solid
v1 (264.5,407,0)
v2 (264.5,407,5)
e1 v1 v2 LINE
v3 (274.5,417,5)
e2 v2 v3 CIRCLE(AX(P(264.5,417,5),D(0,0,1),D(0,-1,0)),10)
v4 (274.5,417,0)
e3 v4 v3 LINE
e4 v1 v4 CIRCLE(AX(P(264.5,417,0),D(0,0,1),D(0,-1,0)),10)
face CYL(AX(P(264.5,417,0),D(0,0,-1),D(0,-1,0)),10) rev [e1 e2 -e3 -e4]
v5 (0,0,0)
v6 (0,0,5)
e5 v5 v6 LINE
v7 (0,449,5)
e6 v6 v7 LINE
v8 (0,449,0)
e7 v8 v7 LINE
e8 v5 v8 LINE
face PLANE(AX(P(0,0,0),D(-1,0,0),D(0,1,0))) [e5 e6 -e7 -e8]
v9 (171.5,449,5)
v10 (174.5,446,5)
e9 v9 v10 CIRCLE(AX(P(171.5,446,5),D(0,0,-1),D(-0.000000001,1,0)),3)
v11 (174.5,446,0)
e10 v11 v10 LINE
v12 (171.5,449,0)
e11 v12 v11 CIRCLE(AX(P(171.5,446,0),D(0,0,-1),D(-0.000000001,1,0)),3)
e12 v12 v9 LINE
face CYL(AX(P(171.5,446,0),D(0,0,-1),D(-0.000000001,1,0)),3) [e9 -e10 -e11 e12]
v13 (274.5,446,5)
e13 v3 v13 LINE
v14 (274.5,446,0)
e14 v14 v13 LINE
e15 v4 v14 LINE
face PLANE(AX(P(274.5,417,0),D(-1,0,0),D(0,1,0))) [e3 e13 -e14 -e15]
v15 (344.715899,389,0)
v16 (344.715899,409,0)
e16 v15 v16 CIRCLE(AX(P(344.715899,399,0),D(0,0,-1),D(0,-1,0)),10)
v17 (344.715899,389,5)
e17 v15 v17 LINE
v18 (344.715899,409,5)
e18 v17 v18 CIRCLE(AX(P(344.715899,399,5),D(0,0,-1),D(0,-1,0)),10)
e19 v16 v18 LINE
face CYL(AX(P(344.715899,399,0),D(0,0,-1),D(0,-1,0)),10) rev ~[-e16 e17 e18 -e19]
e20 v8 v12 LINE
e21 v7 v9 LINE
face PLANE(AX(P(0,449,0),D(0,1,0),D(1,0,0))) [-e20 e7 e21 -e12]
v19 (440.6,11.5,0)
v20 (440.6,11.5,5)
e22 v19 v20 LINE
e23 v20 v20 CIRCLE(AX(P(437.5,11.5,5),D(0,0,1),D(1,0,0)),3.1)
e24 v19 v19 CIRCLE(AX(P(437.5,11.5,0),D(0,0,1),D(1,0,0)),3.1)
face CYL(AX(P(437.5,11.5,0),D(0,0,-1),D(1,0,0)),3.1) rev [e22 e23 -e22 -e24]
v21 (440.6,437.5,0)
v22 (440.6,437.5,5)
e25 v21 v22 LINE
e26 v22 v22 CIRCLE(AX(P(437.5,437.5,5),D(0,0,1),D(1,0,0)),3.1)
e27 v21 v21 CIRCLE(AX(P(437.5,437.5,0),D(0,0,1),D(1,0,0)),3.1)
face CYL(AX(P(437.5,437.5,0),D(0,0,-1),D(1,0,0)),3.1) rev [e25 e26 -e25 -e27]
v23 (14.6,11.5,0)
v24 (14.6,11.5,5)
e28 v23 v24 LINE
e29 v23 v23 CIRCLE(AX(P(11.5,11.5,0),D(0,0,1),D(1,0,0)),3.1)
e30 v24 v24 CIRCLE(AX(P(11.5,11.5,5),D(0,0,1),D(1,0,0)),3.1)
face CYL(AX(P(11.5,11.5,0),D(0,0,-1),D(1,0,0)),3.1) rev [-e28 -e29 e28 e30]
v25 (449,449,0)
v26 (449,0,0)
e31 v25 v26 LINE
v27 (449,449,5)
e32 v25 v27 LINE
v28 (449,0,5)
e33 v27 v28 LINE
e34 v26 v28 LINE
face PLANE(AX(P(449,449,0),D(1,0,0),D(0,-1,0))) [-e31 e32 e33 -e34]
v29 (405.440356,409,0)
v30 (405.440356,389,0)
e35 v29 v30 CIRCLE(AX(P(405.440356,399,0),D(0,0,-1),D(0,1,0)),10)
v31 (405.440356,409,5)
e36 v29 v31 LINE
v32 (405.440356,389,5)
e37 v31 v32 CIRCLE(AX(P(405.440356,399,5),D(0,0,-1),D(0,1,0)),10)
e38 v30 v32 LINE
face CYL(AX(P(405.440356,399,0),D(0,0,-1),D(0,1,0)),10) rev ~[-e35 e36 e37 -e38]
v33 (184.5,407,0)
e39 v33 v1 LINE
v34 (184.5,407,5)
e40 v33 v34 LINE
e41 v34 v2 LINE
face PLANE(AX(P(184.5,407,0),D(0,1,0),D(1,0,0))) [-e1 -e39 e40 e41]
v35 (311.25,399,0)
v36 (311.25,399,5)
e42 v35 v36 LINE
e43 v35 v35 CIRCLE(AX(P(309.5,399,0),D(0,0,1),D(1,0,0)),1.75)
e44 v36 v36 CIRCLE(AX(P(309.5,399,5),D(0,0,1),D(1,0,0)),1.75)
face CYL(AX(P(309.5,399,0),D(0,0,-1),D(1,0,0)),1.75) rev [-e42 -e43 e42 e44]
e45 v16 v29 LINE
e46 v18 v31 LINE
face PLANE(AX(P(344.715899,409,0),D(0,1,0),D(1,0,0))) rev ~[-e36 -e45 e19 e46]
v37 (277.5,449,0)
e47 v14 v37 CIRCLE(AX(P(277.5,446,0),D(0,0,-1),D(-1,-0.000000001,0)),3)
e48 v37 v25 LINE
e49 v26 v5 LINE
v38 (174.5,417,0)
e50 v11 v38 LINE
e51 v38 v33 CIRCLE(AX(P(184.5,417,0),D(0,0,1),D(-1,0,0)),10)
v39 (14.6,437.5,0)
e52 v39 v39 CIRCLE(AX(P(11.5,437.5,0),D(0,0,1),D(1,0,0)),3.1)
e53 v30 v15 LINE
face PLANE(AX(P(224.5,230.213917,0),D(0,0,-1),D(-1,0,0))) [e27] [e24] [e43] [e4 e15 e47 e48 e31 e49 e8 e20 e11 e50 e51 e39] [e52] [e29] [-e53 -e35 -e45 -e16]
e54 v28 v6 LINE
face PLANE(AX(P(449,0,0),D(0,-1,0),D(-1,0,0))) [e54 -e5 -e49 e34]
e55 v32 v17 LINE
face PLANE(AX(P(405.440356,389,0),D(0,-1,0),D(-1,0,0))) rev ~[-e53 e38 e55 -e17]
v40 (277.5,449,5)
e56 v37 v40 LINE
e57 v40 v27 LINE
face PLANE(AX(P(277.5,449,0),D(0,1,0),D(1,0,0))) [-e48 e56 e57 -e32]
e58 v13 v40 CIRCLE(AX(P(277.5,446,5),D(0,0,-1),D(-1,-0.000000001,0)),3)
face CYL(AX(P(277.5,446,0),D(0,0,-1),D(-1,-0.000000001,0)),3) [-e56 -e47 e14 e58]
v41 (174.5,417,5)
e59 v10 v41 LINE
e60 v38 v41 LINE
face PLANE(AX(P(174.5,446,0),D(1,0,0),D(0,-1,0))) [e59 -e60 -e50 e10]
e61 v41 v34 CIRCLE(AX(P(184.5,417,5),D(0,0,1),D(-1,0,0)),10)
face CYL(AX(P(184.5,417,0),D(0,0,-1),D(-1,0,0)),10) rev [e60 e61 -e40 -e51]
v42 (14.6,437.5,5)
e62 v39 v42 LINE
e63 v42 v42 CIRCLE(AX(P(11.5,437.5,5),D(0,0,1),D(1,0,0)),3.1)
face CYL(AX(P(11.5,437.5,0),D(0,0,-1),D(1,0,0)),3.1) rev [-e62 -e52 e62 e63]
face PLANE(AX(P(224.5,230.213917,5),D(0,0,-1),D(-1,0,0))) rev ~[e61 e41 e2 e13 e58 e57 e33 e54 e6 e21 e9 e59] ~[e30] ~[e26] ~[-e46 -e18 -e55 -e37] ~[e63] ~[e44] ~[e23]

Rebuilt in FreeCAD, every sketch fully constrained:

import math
import FreeCAD as App
import Part
import Sketcher
from FreeCAD import Vector
Q = App.Units.Quantity

doc = App.newDocument("Part")
body = doc.addObject("PartDesign::Body", "Body")

sketch1 = body.newObject("Sketcher::SketchObject", "Sketch")
sketch1.AttachmentSupport = (doc.getObject("XY_Plane"), [""])
sketch1.MapMode = "FlatFace"
sketch1.addGeometry([
    Part.LineSegment(Vector(0, 449, 0), Vector(0, 0, 0)),
    Part.LineSegment(Vector(0, 0, 0), Vector(449, 0, 0)),
    Part.LineSegment(Vector(449, 0, 0), Vector(449, 449, 0)),
    Part.LineSegment(Vector(449, 449, 0), Vector(277.5, 449, 0)),
    Part.ArcOfCircle(Part.Circle(Vector(277.5, 446, 0), Vector(0, 0, 1), 3), math.radians(90), math.radians(180)),
    Part.LineSegment(Vector(274.5, 446, 0), Vector(274.5, 417, 0)),
    Part.ArcOfCircle(Part.Circle(Vector(264.5, 417, 0), Vector(0, 0, 1), 10), math.radians(-90), math.radians(0)),
    Part.LineSegment(Vector(264.5, 407, 0), Vector(184.5, 407, 0)),
    Part.ArcOfCircle(Part.Circle(Vector(184.5, 417, 0), Vector(0, 0, 1), 10), math.radians(180), math.radians(270)),
    Part.LineSegment(Vector(174.5, 417, 0), Vector(174.5, 446, 0)),
    Part.ArcOfCircle(Part.Circle(Vector(171.5, 446, 0), Vector(0, 0, 1), 3), math.radians(0), math.radians(90)),
    Part.LineSegment(Vector(171.5, 449, 0), Vector(0, 449, 0)),
    Part.Circle(Vector(437.5, 11.5, 0), Vector(0, 0, 1), 3.1),
    Part.Circle(Vector(11.5, 11.5, 0), Vector(0, 0, 1), 3.1),
    Part.Circle(Vector(437.5, 437.5, 0), Vector(0, 0, 1), 3.1),
    Part.LineSegment(Vector(344.7, 409, 0), Vector(405.4, 409, 0)),
    Part.ArcOfCircle(Part.Circle(Vector(405.4, 399, 0), Vector(0, 0, 1), 10), math.radians(-90), math.radians(90)),
    Part.LineSegment(Vector(405.4, 389, 0), Vector(344.7, 389, 0)),
    Part.ArcOfCircle(Part.Circle(Vector(344.7, 399, 0), Vector(0, 0, 1), 10), math.radians(90), math.radians(270)),
    Part.Circle(Vector(309.5, 399, 0), Vector(0, 0, 1), 1.8),
    Part.Circle(Vector(11.5, 437.5, 0), Vector(0, 0, 1), 3.1),
], False)
sketch1.addConstraint([
    Sketcher.Constraint("Coincident", 0, 2, 1, 1),
    Sketcher.Constraint("Coincident", 1, 2, 2, 1),
    Sketcher.Constraint("Coincident", 2, 2, 3, 1),
    Sketcher.Constraint("Tangent", 3, 2, 4, 1),
    Sketcher.Constraint("Tangent", 4, 2, 5, 1),
    Sketcher.Constraint("Tangent", 5, 2, 6, 2),
    Sketcher.Constraint("Tangent", 6, 1, 7, 1),
    Sketcher.Constraint("Tangent", 7, 2, 8, 2),
    Sketcher.Constraint("Tangent", 8, 1, 9, 1),
    Sketcher.Constraint("Tangent", 9, 2, 10, 1),
    Sketcher.Constraint("Tangent", 10, 2, 11, 1),
    Sketcher.Constraint("Coincident", 11, 2, 0, 1),
    Sketcher.Constraint("Tangent", 15, 2, 16, 2),
    Sketcher.Constraint("Tangent", 16, 1, 17, 1),
    Sketcher.Constraint("Tangent", 17, 2, 18, 2),
    Sketcher.Constraint("Tangent", 18, 1, 15, 1),
    Sketcher.Constraint("Vertical", 0),
    Sketcher.Constraint("Horizontal", 1),
    Sketcher.Constraint("Vertical", 2),
    Sketcher.Constraint("Horizontal", 3),
    Sketcher.Constraint("Vertical", 5),
    Sketcher.Constraint("Horizontal", 7),
    Sketcher.Constraint("Vertical", 9),
    Sketcher.Constraint("Horizontal", 11),
    Sketcher.Constraint("Horizontal", 15),
    Sketcher.Constraint("Horizontal", 17),
    Sketcher.Constraint("Coincident", 0, 2, -1, 1),
    Sketcher.Constraint("Equal", 6, 8),
    Sketcher.Constraint("Equal", 4, 10),
    Sketcher.Constraint("Equal", 12, 13),
    Sketcher.Constraint("Equal", 13, 14),
    Sketcher.Constraint("Equal", 8, 16),
    Sketcher.Constraint("Equal", 14, 20),
    Sketcher.Constraint("Horizontal", 4, 3, 10, 3),
    Sketcher.Constraint("Horizontal", 12, 3, 13, 3),
    Sketcher.Constraint("Horizontal", 18, 3, 19, 3),
    Sketcher.Constraint("Horizontal", 14, 3, 20, 3),
    Sketcher.Constraint("Vertical", 12, 3, 14, 3),
    Sketcher.Constraint("Vertical", 13, 3, 20, 3),
    Sketcher.Constraint("Equal", 3, 11),
    Sketcher.Constraint("Equal", 1, 0),
    Sketcher.Constraint("Radius", 4, Q("3 mm")),
    Sketcher.Constraint("Radius", 6, Q("10 mm")),
    Sketcher.Constraint("Diameter", 12, Q("6.2 mm")),
    Sketcher.Constraint("Diameter", 19, Q("3.5 mm")),
    Sketcher.Constraint("DistanceX", 1, 1, 1, 2, Q("449 mm")),
    Sketcher.Constraint("DistanceX", 7, 2, 7, 1, Q("80 mm")),
    Sketcher.Constraint("DistanceY", 5, 2, 5, 1, Q("29 mm")),
    Sketcher.Constraint("DistanceY", -1, 1, 16, 3, Q("399 mm")),
    Sketcher.Constraint("DistanceX", 6, 3, 12, 3, Q("173 mm")),
    Sketcher.Constraint("DistanceX", 13, 3, 12, 3, Q("426 mm")),
    Sketcher.Constraint("DistanceY", 12, 3, 14, 3, Q("426 mm")),
    Sketcher.Constraint("DistanceX", 6, 3, 19, 3, Q("45 mm")),
    Sketcher.Constraint("DistanceY", -1, 1, 12, 3, Q("11.5 mm")),
    Sketcher.Constraint("DistanceX", -1, 1, 18, 3, Q("344.715899 mm")),
    Sketcher.Constraint("DistanceX", 15, 1, 15, 2, Q("60.724456 mm")),
])
pad1 = body.newObject("PartDesign::Pad", "Pad")
pad1.Profile = sketch1
pad1.Length = 5

doc.recompute()
